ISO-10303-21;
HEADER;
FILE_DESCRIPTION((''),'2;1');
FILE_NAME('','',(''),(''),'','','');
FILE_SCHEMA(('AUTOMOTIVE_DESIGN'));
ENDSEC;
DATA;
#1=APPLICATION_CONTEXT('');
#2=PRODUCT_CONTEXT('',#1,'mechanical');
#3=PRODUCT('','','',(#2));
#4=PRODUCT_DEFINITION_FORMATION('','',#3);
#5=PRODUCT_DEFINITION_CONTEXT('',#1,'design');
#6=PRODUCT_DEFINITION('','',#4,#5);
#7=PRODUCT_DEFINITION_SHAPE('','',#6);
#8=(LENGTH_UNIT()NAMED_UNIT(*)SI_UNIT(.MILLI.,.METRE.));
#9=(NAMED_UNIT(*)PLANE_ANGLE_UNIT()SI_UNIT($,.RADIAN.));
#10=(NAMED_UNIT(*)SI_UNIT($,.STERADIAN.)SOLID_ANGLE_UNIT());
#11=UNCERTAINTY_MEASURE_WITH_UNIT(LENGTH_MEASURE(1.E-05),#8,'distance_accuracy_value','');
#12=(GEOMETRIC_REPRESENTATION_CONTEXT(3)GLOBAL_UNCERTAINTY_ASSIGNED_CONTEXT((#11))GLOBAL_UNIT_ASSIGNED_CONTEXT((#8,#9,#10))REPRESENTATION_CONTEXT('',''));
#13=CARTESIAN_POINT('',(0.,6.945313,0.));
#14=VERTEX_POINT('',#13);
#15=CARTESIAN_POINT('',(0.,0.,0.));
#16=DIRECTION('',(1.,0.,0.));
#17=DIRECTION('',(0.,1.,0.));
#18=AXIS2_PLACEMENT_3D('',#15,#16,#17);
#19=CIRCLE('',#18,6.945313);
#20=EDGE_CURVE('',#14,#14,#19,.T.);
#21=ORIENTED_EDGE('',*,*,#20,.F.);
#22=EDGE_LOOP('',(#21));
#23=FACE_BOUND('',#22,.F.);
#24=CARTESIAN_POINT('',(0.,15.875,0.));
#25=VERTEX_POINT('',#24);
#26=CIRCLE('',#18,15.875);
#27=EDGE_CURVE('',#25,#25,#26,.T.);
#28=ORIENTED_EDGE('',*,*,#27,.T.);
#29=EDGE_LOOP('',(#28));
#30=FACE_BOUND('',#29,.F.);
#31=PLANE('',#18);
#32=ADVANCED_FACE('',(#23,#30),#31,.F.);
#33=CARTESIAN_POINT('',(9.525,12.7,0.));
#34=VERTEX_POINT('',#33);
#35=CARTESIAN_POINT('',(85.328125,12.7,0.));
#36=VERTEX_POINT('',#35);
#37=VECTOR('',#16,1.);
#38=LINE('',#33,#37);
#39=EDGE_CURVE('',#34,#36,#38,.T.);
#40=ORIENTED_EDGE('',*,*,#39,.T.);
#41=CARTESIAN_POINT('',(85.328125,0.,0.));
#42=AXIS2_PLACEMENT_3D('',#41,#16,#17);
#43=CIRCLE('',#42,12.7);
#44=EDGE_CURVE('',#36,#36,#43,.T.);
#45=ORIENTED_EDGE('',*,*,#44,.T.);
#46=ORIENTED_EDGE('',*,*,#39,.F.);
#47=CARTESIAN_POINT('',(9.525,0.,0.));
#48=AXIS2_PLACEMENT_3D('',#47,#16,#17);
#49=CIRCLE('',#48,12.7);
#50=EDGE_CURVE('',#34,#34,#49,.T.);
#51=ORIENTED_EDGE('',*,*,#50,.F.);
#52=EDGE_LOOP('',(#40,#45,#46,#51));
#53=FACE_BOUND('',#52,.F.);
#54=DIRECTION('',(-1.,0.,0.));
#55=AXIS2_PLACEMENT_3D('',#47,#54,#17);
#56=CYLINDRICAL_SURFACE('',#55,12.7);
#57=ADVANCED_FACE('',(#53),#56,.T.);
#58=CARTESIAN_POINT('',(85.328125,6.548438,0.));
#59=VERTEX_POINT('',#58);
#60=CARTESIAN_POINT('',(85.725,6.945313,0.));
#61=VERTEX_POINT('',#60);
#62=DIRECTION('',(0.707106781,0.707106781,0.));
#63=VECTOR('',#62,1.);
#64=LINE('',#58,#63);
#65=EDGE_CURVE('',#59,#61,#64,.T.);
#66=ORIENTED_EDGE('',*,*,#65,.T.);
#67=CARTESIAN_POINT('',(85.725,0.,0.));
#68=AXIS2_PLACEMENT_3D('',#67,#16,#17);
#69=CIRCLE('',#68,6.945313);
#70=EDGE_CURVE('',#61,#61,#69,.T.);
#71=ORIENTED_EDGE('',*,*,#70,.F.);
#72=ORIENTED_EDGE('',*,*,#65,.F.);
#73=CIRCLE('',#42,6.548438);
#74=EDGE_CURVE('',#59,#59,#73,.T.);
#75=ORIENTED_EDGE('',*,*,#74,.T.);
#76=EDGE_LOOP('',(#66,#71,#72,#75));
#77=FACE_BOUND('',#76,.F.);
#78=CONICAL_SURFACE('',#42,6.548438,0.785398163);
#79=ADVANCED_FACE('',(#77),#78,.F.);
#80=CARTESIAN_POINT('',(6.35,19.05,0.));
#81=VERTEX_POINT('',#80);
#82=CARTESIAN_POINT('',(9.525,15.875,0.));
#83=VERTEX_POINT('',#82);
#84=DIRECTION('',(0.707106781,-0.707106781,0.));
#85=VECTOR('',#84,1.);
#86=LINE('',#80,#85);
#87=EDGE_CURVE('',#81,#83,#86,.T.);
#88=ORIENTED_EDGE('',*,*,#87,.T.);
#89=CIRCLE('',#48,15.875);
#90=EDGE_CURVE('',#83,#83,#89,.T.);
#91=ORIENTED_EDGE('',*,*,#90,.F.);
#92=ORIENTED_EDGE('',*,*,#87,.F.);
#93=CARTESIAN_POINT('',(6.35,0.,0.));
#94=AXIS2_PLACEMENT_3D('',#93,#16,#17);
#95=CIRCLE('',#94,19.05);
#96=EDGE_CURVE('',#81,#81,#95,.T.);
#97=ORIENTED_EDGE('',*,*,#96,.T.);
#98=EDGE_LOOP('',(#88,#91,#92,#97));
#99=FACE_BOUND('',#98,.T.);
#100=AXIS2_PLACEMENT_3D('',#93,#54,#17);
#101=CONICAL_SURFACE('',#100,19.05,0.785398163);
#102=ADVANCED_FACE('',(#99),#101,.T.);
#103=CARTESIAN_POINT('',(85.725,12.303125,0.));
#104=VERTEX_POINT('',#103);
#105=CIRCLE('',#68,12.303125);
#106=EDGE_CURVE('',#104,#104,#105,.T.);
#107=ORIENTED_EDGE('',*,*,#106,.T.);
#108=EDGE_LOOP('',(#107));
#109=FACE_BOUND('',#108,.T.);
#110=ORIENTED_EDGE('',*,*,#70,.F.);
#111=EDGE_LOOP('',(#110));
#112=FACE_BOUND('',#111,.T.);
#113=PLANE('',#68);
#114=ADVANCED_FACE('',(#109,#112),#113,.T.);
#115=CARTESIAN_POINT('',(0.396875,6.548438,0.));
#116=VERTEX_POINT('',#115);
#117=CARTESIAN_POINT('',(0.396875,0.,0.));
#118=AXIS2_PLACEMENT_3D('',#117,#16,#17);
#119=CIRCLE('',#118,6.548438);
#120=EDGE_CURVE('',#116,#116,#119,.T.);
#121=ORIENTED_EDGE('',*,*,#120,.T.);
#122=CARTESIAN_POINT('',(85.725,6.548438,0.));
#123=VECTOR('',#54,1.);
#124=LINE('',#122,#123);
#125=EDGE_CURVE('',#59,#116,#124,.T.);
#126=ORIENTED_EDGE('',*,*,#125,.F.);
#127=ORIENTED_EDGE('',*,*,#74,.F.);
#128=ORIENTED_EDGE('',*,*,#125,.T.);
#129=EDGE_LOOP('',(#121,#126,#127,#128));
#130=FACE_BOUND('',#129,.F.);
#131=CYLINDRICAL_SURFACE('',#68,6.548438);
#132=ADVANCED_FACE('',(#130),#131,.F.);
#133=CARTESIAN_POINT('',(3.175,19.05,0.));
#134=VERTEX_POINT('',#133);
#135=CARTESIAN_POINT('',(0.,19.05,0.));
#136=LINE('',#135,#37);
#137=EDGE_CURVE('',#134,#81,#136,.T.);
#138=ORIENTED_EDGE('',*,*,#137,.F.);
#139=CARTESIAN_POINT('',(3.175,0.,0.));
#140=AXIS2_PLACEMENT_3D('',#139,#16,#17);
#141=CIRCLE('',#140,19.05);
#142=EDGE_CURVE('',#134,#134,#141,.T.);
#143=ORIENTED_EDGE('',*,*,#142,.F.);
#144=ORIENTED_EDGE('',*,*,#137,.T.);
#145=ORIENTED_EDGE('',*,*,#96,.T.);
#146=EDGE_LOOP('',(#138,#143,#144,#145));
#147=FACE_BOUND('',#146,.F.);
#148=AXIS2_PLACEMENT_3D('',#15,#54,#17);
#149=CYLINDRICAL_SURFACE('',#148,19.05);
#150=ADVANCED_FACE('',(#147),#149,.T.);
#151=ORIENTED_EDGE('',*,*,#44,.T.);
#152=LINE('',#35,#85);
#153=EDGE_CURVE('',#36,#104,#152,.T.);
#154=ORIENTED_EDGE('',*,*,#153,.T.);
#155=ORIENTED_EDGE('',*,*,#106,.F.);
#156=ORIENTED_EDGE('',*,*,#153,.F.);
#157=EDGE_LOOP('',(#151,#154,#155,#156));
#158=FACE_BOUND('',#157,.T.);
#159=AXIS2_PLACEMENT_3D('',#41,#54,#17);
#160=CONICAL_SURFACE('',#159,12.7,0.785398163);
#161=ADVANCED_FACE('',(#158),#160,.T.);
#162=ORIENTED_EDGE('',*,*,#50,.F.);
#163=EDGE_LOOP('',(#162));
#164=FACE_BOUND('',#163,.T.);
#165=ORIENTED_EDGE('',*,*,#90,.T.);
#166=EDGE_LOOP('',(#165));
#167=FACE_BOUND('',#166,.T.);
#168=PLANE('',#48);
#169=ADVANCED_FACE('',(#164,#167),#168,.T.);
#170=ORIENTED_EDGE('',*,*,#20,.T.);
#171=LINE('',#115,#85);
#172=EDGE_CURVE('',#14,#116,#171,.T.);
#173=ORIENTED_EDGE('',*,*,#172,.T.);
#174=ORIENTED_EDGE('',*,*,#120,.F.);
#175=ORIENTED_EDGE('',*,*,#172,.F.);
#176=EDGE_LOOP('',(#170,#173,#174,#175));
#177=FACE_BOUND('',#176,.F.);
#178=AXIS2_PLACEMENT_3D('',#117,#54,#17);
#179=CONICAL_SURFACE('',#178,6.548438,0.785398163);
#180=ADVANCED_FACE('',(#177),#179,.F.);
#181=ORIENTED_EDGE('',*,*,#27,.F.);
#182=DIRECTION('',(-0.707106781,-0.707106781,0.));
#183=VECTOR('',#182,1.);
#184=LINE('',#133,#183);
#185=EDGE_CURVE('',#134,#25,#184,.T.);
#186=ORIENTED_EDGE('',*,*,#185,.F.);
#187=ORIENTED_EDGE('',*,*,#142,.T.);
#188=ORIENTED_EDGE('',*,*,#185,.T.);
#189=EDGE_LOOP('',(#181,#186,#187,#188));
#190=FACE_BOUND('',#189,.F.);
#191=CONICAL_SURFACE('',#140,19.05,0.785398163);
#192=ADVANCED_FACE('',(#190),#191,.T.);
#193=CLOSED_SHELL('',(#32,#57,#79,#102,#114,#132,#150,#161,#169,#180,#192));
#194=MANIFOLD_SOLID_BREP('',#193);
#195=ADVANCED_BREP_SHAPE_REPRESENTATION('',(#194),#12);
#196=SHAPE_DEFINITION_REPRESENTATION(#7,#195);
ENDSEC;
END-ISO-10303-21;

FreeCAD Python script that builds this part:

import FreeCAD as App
import Part
import Sketcher
from FreeCAD import Vector
Q = App.Units.Quantity


def edges_at(feature, points):
    """Names of the edges that pass closest to the given points."""
    edges = feature.Shape.Edges
    near = lambda p: min(range(len(edges)), key=lambda i: edges[i].distToShape(Part.Vertex(*p))[0])
    return sorted({f"Edge{near(p) + 1}" for p in points})

doc = App.newDocument("Part")
body = doc.addObject("PartDesign::Body", "Body")

sketch1 = body.newObject("Sketcher::SketchObject", "Sketch")
sketch1.AttachmentSupport = (doc.getObject("YZ_Plane"), [""])
sketch1.MapMode = "FlatFace"
sketch1.addGeometry(Part.Circle(Vector(0, 0, 0), Vector(0, 0, 1), 19), False)
sketch1.addConstraint([
    Sketcher.Constraint("Coincident", 0, 3, -1, 1),
    Sketcher.Constraint("Diameter", 0, Q("1.5 in")),
])
pad1 = body.newObject("PartDesign::Pad", "Pad")
pad1.Profile = sketch1
pad1.Length = Q("0.375 in")
doc.recompute()

chamfer = body.newObject("PartDesign::Chamfer", "Chamfer")
chamfer.Base = (pad1, edges_at(pad1, [(9.525, -19.05, 0), (0, -19.05, 0)]))
chamfer.Size = Q("0.125 in")

sketch2 = body.newObject("Sketcher::SketchObject", "Sketch001")
sketch2.AttachmentSupport = (doc.getObject("YZ_Plane"), [""])
sketch2.MapMode = "FlatFace"
sketch2.AttachmentOffset = App.Placement(Vector(0, 0, 0.375 * 25.4), App.Rotation())
sketch2.addGeometry(Part.Circle(Vector(0, 0, 0), Vector(0, 0, 1), 13), False)
sketch2.addConstraint([
    Sketcher.Constraint("Coincident", 0, 3, -1, 1),
    Sketcher.Constraint("Diameter", 0, Q("1 in")),
])
pad2 = body.newObject("PartDesign::Pad", "Pad001")
pad2.Profile = sketch2
pad2.Length = Q("3 in")

sketch3 = body.newObject("Sketcher::SketchObject", "Sketch002")
sketch3.AttachmentSupport = (doc.getObject("YZ_Plane"), [""])
sketch3.MapMode = "FlatFace"
sketch3.AttachmentOffset = App.Placement(Vector(0, 0, 3.375 * 25.4), App.Rotation())
sketch3.addGeometry(Part.Circle(Vector(0, 0, 0), Vector(0, 0, 1), 7), False)
sketch3.addConstraint([
    Sketcher.Constraint("Coincident", 0, 3, -1, 1),
    Sketcher.Constraint("Diameter", 0, Q("0.515625 in")),
])
pocket1 = body.newObject("PartDesign::Pocket", "Pocket")
pocket1.Profile = sketch3
pocket1.Type = "ThroughAll"
doc.recompute()

chamfer2 = body.newObject("PartDesign::Chamfer", "Chamfer001")
chamfer2.Base = (pocket1, edges_at(pocket1, [(85.725, -12.7, 0), (85.725, -6.548, 0), (0, -6.548, 0)]))
chamfer2.Size = Q("0.015625 in")

doc.recompute()
